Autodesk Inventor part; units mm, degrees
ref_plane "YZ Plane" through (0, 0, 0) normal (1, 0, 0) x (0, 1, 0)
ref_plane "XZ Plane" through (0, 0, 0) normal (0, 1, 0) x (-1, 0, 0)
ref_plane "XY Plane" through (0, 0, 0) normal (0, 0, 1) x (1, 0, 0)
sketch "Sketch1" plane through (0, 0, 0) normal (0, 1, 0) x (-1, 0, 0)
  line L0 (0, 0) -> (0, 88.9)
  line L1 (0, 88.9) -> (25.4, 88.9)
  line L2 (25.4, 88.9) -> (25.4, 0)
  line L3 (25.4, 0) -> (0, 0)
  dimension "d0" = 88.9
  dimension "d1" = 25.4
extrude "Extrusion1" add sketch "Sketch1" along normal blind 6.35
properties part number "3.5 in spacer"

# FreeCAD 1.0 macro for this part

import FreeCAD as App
import Part
import Sketcher

V = App.Vector
Q = App.Units.Quantity

doc = App.newDocument("Part")
body = doc.addObject("PartDesign::Body", "Body")

sketch1 = body.newObject("Sketcher::SketchObject", "Sketch")
sketch1.AttachmentSupport = (doc.getObject("XZ_Plane"), [""])
sketch1.MapMode = "FlatFace"
sketch1.addGeometry([
    Part.LineSegment(V(0, 89, 0), V(0, 0, 0)),
    Part.LineSegment(V(0, 0, 0), V(-25, 0, 0)),
    Part.LineSegment(V(-25, 0, 0), V(-25, 89, 0)),
    Part.LineSegment(V(-25, 89, 0), V(0, 89, 0)),
], False)
sketch1.addConstraint([
    Sketcher.Constraint("Coincident", 0, 2, 1, 1),
    Sketcher.Constraint("Coincident", 1, 2, 2, 1),
    Sketcher.Constraint("Coincident", 2, 2, 3, 1),
    Sketcher.Constraint("Coincident", 3, 2, 0, 1),
    Sketcher.Constraint("Vertical", 0),
    Sketcher.Constraint("Horizontal", 1),
    Sketcher.Constraint("Vertical", 2),
    Sketcher.Constraint("Horizontal", 3),
    Sketcher.Constraint("Coincident", 0, 2, -1, 1),
    Sketcher.Constraint("DistanceX", 1, 2, 1, 1, Q("1 in")),
    Sketcher.Constraint("DistanceY", 0, 2, 0, 1, Q("3.5 in")),
])
pad1 = body.newObject("PartDesign::Pad", "Pad")
pad1.Profile = sketch1
pad1.Length = Q("0.25 in")
pad1.Reversed = True

doc.recompute()
